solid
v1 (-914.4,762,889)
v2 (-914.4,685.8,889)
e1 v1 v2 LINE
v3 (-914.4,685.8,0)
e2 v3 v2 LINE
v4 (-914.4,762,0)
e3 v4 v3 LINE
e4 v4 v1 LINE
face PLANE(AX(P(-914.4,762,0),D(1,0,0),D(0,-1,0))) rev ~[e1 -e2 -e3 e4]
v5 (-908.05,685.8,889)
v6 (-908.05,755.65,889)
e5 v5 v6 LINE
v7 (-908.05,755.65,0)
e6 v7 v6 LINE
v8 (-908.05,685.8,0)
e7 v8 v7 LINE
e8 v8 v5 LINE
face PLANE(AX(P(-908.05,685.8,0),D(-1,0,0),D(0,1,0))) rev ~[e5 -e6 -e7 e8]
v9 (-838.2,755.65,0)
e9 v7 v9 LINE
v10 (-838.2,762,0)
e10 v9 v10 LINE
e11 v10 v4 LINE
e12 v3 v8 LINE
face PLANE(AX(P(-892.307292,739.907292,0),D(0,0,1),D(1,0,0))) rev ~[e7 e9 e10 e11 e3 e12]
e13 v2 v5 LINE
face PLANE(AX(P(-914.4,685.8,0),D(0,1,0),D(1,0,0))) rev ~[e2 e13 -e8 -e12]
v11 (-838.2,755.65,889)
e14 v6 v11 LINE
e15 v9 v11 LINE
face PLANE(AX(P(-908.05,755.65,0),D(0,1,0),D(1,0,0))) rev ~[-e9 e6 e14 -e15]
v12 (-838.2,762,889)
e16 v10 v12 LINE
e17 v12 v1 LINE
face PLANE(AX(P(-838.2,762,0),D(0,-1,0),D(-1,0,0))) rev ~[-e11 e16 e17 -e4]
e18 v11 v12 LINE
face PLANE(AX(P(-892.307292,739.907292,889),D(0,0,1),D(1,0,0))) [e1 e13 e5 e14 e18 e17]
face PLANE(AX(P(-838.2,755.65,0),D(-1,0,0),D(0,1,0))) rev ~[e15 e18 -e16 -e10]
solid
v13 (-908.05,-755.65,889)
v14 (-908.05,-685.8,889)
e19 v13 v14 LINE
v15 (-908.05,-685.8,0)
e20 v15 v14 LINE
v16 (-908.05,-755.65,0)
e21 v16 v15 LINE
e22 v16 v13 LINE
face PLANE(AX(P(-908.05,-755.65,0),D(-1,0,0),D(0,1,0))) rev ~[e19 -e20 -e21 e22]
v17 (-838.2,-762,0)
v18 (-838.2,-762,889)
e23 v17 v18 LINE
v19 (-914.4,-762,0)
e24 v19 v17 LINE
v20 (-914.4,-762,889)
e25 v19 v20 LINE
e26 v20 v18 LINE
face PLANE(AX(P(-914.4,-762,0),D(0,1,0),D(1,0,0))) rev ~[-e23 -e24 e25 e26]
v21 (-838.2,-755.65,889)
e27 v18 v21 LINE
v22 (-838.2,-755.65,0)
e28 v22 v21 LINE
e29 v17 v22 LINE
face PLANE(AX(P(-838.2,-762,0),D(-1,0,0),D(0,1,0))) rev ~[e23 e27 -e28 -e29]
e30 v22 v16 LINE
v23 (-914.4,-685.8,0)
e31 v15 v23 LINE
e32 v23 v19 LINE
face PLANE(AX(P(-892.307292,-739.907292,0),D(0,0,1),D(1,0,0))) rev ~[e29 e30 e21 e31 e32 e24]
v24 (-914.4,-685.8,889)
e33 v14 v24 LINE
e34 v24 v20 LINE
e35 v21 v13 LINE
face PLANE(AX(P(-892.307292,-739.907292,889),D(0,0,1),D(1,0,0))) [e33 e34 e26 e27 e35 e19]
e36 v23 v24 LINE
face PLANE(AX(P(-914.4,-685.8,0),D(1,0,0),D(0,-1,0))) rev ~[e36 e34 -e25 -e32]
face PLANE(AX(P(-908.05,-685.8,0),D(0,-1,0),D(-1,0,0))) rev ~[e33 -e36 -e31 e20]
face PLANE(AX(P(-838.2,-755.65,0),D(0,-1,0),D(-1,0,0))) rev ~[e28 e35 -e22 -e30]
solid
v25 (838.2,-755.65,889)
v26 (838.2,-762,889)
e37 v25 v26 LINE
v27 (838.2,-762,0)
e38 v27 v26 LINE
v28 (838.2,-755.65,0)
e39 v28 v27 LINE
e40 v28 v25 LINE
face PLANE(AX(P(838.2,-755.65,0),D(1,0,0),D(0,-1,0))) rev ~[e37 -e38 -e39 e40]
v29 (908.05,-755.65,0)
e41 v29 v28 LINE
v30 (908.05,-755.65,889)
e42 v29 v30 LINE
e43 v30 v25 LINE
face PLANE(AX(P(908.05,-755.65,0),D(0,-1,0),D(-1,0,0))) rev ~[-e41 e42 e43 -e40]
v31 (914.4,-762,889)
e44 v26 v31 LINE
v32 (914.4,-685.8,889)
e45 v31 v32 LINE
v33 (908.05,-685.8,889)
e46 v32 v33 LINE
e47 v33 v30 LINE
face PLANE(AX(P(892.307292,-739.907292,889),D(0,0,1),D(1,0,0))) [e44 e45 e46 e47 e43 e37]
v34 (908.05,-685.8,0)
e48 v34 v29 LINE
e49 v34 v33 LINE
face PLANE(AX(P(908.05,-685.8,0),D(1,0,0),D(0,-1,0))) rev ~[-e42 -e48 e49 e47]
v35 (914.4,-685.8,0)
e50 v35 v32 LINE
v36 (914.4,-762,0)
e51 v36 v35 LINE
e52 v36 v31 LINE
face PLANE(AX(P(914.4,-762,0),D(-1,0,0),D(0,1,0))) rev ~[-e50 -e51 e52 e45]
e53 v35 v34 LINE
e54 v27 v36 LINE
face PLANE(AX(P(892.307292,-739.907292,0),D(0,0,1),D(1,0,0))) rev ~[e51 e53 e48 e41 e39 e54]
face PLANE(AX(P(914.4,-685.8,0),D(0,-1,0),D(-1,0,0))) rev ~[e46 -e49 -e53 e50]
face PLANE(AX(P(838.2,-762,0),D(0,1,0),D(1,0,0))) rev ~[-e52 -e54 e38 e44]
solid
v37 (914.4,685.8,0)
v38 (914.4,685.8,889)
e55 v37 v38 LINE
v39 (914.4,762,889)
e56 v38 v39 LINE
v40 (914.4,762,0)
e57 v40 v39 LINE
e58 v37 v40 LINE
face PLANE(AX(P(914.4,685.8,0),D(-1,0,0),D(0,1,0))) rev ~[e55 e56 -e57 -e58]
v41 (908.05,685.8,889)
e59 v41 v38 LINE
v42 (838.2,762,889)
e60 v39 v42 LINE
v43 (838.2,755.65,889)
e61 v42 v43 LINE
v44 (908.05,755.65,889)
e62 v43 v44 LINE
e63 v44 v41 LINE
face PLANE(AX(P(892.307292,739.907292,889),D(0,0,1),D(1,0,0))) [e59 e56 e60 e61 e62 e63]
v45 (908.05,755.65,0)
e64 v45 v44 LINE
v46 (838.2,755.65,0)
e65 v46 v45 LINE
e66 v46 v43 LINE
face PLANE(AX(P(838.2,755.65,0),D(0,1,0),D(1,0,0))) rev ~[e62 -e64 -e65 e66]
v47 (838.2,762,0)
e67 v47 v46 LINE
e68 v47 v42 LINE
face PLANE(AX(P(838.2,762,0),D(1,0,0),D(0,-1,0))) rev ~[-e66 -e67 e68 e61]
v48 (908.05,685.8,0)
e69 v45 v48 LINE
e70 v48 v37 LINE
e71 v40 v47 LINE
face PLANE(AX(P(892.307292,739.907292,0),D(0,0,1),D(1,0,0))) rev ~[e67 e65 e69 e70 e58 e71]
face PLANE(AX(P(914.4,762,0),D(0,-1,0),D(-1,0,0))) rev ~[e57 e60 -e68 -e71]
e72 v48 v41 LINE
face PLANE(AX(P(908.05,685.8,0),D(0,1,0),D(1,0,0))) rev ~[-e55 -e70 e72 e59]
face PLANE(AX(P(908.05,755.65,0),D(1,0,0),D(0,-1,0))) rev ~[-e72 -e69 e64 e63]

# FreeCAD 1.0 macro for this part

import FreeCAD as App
import Part
import Sketcher

V = App.Vector
Q = App.Units.Quantity

doc = App.newDocument("Part")
body = doc.addObject("PartDesign::Body", "Body")
body.AllowCompound = True

# Sketch on XY plane
sketch1 = body.newObject("Sketcher::SketchObject", "Sketch")
sketch1.AttachmentSupport = (doc.getObject("XY_Plane"), [""])
sketch1.MapMode = "FlatFace"
sketch1.addGeometry(Part.LineSegment(V(-914, -686, 0), V(-914, -762, 0)), False)
sketch1.addGeometry(Part.LineSegment(V(-914, -762, 0), V(-838, -762, 0)), False)
sketch1.addGeometry(Part.LineSegment(V(-838, -762, 0), V(-838, -756, 0)), False)
sketch1.addGeometry(Part.LineSegment(V(-838, -756, 0), V(-908, -756, 0)), False)
sketch1.addGeometry(Part.LineSegment(V(-908, -756, 0), V(-908, -686, 0)), False)
sketch1.addGeometry(Part.LineSegment(V(-908, -686, 0), V(-914, -686, 0)), False)
sketch1.addGeometry(Part.LineSegment(V(-914, 762, 0), V(-914, 686, 0)), False)
sketch1.addGeometry(Part.LineSegment(V(-914, 686, 0), V(-908, 686, 0)), False)
sketch1.addGeometry(Part.LineSegment(V(-908, 686, 0), V(-908, 756, 0)), False)
sketch1.addGeometry(Part.LineSegment(V(-908, 756, 0), V(-838, 756, 0)), False)
sketch1.addGeometry(Part.LineSegment(V(-838, 756, 0), V(-838, 762, 0)), False)
sketch1.addGeometry(Part.LineSegment(V(-838, 762, 0), V(-914, 762, 0)), False)
sketch1.addGeometry(Part.LineSegment(V(914, -762, 0), V(914, -686, 0)), False)
sketch1.addGeometry(Part.LineSegment(V(914, -686, 0), V(908, -686, 0)), False)
sketch1.addGeometry(Part.LineSegment(V(908, -686, 0), V(908, -756, 0)), False)
sketch1.addGeometry(Part.LineSegment(V(908, -756, 0), V(838, -756, 0)), False)
sketch1.addGeometry(Part.LineSegment(V(838, -756, 0), V(838, -762, 0)), False)
sketch1.addGeometry(Part.LineSegment(V(838, -762, 0), V(914, -762, 0)), False)
sketch1.addGeometry(Part.LineSegment(V(908, 686, 0), V(914, 686, 0)), False)
sketch1.addGeometry(Part.LineSegment(V(914, 686, 0), V(914, 762, 0)), False)
sketch1.addGeometry(Part.LineSegment(V(914, 762, 0), V(838, 762, 0)), False)
sketch1.addGeometry(Part.LineSegment(V(838, 762, 0), V(838, 756, 0)), False)
sketch1.addGeometry(Part.LineSegment(V(838, 756, 0), V(908, 756, 0)), False)
sketch1.addGeometry(Part.LineSegment(V(908, 756, 0), V(908, 686, 0)), False)
sketch1.addConstraint(Sketcher.Constraint("Coincident", 0, 2, 1, 1))
sketch1.addConstraint(Sketcher.Constraint("Coincident", 1, 2, 2, 1))
sketch1.addConstraint(Sketcher.Constraint("Coincident", 2, 2, 3, 1))
sketch1.addConstraint(Sketcher.Constraint("Coincident", 3, 2, 4, 1))
sketch1.addConstraint(Sketcher.Constraint("Coincident", 4, 2, 5, 1))
sketch1.addConstraint(Sketcher.Constraint("Coincident", 5, 2, 0, 1))
sketch1.addConstraint(Sketcher.Constraint("Coincident", 6, 2, 7, 1))
sketch1.addConstraint(Sketcher.Constraint("Coincident", 7, 2, 8, 1))
sketch1.addConstraint(Sketcher.Constraint("Coincident", 8, 2, 9, 1))
sketch1.addConstraint(Sketcher.Constraint("Coincident", 9, 2, 10, 1))
sketch1.addConstraint(Sketcher.Constraint("Coincident", 10, 2, 11, 1))
sketch1.addConstraint(Sketcher.Constraint("Coincident", 11, 2, 6, 1))
sketch1.addConstraint(Sketcher.Constraint("Coincident", 12, 2, 13, 1))
sketch1.addConstraint(Sketcher.Constraint("Coincident", 13, 2, 14, 1))
sketch1.addConstraint(Sketcher.Constraint("Coincident", 14, 2, 15, 1))
sketch1.addConstraint(Sketcher.Constraint("Coincident", 15, 2, 16, 1))
sketch1.addConstraint(Sketcher.Constraint("Coincident", 16, 2, 17, 1))
sketch1.addConstraint(Sketcher.Constraint("Coincident", 17, 2, 12, 1))
sketch1.addConstraint(Sketcher.Constraint("Coincident", 18, 2, 19, 1))
sketch1.addConstraint(Sketcher.Constraint("Coincident", 19, 2, 20, 1))
sketch1.addConstraint(Sketcher.Constraint("Coincident", 20, 2, 21, 1))
sketch1.addConstraint(Sketcher.Constraint("Coincident", 21, 2, 22, 1))
sketch1.addConstraint(Sketcher.Constraint("Coincident", 22, 2, 23, 1))
sketch1.addConstraint(Sketcher.Constraint("Coincident", 23, 2, 18, 1))
sketch1.addConstraint(Sketcher.Constraint("Vertical", 0))
sketch1.addConstraint(Sketcher.Constraint("Horizontal", 1))
sketch1.addConstraint(Sketcher.Constraint("Vertical", 2))
sketch1.addConstraint(Sketcher.Constraint("Horizontal", 3))
sketch1.addConstraint(Sketcher.Constraint("Vertical", 4))
sketch1.addConstraint(Sketcher.Constraint("Horizontal", 5))
sketch1.addConstraint(Sketcher.Constraint("Vertical", 6))
sketch1.addConstraint(Sketcher.Constraint("Horizontal", 7))
sketch1.addConstraint(Sketcher.Constraint("Vertical", 8))
sketch1.addConstraint(Sketcher.Constraint("Horizontal", 9))
sketch1.addConstraint(Sketcher.Constraint("Vertical", 10))
sketch1.addConstraint(Sketcher.Constraint("Horizontal", 11))
sketch1.addConstraint(Sketcher.Constraint("Vertical", 12))
sketch1.addConstraint(Sketcher.Constraint("Horizontal", 13))
sketch1.addConstraint(Sketcher.Constraint("Vertical", 14))
sketch1.addConstraint(Sketcher.Constraint("Horizontal", 15))
sketch1.addConstraint(Sketcher.Constraint("Vertical", 16))
sketch1.addConstraint(Sketcher.Constraint("Horizontal", 17))
sketch1.addConstraint(Sketcher.Constraint("Horizontal", 18))
sketch1.addConstraint(Sketcher.Constraint("Vertical", 19))
sketch1.addConstraint(Sketcher.Constraint("Horizontal", 20))
sketch1.addConstraint(Sketcher.Constraint("Vertical", 21))
sketch1.addConstraint(Sketcher.Constraint("Horizontal", 22))
sketch1.addConstraint(Sketcher.Constraint("Vertical", 23))
sketch1.addConstraint(Sketcher.Constraint("Symmetric", 6, 2, 12, 2, -1, 1))
sketch1.addConstraint(Sketcher.Constraint("Symmetric", 8, 2, 14, 2, -1, 1))
sketch1.addConstraint(Sketcher.Constraint("Symmetric", 10, 2, 16, 2, -1, 1))
sketch1.addConstraint(Sketcher.Constraint("Symmetric", 5, 2, 18, 2, -1, 1))
sketch1.addConstraint(Sketcher.Constraint("Symmetric", 1, 2, 20, 2, -1, 1))
sketch1.addConstraint(Sketcher.Constraint("Symmetric", 3, 2, 22, 2, -1, 1))
sketch1.addConstraint(Sketcher.Constraint("Symmetric", 5, 2, 12, 2, -2))
sketch1.addConstraint(Sketcher.Constraint("Symmetric", 3, 2, 14, 2, -2))
sketch1.addConstraint(Sketcher.Constraint("Symmetric", 1, 2, 16, 2, -2))
sketch1.addConstraint(Sketcher.Constraint("Equal", 20, 0))
sketch1.addConstraint(Sketcher.Constraint("Equal", 18, 2))
sketch1.addConstraint(Sketcher.Constraint("DistanceX", 1, 1, 1, 2, Q("3 in")))
sketch1.addConstraint(Sketcher.Constraint("DistanceX", 0, 2, -1, 1, Q("36 in")))
sketch1.addConstraint(Sketcher.Constraint("DistanceY", 0, 2, -1, 1, Q("30 in")))
sketch1.addConstraint(Sketcher.Constraint("DistanceX", 3, 2, 3, 1, Q("2.75 in")))
pad1 = body.newObject("PartDesign::Pad", "Pad")
pad1.Profile = sketch1
pad1.Length = Q("35 in")

doc.recompute()
